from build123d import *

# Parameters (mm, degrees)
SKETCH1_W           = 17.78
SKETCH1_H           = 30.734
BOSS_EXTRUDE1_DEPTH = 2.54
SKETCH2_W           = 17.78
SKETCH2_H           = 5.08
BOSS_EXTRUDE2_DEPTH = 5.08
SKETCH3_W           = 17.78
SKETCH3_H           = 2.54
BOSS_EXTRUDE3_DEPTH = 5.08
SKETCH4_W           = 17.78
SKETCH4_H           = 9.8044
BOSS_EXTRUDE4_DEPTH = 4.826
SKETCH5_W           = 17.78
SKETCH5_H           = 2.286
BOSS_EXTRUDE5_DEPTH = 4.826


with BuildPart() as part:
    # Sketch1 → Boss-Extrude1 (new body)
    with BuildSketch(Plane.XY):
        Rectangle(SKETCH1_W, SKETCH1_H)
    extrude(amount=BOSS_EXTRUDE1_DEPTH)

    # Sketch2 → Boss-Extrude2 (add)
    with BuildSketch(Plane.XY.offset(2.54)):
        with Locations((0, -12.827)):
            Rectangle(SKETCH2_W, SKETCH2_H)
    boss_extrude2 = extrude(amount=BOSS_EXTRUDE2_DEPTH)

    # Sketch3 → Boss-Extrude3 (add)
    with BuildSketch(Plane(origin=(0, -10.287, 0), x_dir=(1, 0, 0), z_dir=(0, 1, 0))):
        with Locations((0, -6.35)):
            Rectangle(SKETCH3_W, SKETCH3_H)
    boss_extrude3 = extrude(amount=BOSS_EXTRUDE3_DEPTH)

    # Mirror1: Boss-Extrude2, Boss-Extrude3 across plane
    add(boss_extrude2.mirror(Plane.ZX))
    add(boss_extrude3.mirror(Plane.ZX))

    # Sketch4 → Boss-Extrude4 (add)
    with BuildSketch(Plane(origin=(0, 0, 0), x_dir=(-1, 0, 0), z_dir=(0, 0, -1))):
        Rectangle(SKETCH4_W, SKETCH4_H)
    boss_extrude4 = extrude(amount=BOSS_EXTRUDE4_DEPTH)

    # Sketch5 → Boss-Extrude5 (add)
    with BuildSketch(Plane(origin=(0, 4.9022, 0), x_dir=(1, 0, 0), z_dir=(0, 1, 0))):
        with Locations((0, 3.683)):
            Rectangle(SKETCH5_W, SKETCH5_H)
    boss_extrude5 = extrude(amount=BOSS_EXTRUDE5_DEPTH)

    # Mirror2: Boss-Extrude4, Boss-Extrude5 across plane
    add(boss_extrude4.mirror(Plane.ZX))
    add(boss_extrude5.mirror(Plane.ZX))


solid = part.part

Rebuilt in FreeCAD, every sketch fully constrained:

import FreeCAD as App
import Part
import Sketcher

V = App.Vector
Q = App.Units.Quantity


def add_polygon(sketch, points):
    """Adds a closed chain of lines whose ends are joined by coincident constraints."""
    first, n = sketch.GeometryCount, len(points)
    for a, b in zip(points, points[1:] + points[:1]):
        sketch.addGeometry(Part.LineSegment(App.Vector(*a, 0), App.Vector(*b, 0)), False)
    for i in range(n):
        sketch.addConstraint(Sketcher.Constraint("Coincident", first + i, 2, first + (i + 1) % n, 1))

doc = App.newDocument("Part")
body = doc.addObject("PartDesign::Body", "Body")

sketch1 = doc.addObject("Sketcher::SketchObject", "Sketch")
body.addObject(sketch1)
sketch1.AttachmentSupport = (doc.XY_Plane, [""])
sketch1.MapMode = "FlatFace"
add_polygon(sketch1, [(-9, 15), (-9, -15), (9, -15), (9, 15)])
sketch1.addConstraint([
    Sketcher.Constraint("Vertical", 0),
    Sketcher.Constraint("Horizontal", 1),
    Sketcher.Constraint("Vertical", 2),
    Sketcher.Constraint("Horizontal", 3),
    Sketcher.Constraint("Symmetric", 0, 2, 2, 2, -1, 1),
    Sketcher.Constraint("DistanceX", 1, 1, 1, 2, Q("0.7 in")),
    Sketcher.Constraint("DistanceY", 0, 2, 0, 1, Q("1.21 in")),
])
pad1 = doc.addObject("PartDesign::Pad", "Pad")
body.addObject(pad1)
pad1.Profile = sketch1
pad1.Length = Q("0.1 in")

sketch2 = doc.addObject("Sketcher::SketchObject", "Sketch001")
body.addObject(sketch2)
sketch2.AttachmentSupport = (doc.XY_Plane, [""])
sketch2.MapMode = "FlatFace"
sketch2.AttachmentOffset = App.Placement(V(0, 0, 0.1 * 25.4), App.Rotation())
add_polygon(sketch2, [(-9, -10), (-9, -15), (9, -15), (9, -10)])
sketch2.addConstraint([
    Sketcher.Constraint("Vertical", 0),
    Sketcher.Constraint("Horizontal", 1),
    Sketcher.Constraint("Vertical", 2),
    Sketcher.Constraint("Horizontal", 3),
    Sketcher.Constraint("DistanceX", 1, 1, 1, 2, Q("0.7 in")),
    Sketcher.Constraint("DistanceY", 0, 2, 0, 1, Q("0.2 in")),
    Sketcher.Constraint("DistanceX", 0, 2, -1, 1, Q("0.35 in")),
    Sketcher.Constraint("DistanceY", 0, 2, -1, 1, Q("0.605 in")),
])
pad2 = doc.addObject("PartDesign::Pad", "Pad001")
body.addObject(pad2)
pad2.Profile = sketch2
pad2.Length = Q("0.2 in")

sketch3 = doc.addObject("Sketcher::SketchObject", "Sketch002")
body.addObject(sketch3)
sketch3.AttachmentSupport = (doc.XZ_Plane, [""])
sketch3.MapMode = "FlatFace"
sketch3.AttachmentOffset = App.Placement(V(0, 0, 0.405 * 25.4), App.Rotation())
add_polygon(sketch3, [(-8.9, 5.1), (-8.9, 7.6), (8.9, 7.6), (8.9, 5.1)])
sketch3.addConstraint([
    Sketcher.Constraint("Vertical", 0),
    Sketcher.Constraint("Horizontal", 1),
    Sketcher.Constraint("Vertical", 2),
    Sketcher.Constraint("Horizontal", 3),
    Sketcher.Constraint("DistanceX", 1, 1, 1, 2, Q("0.7 in")),
    Sketcher.Constraint("DistanceY", 0, 1, 0, 2, Q("0.1 in")),
    Sketcher.Constraint("DistanceY", -1, 1, 0, 2, Q("0.3 in")),
    Sketcher.Constraint("DistanceX", 0, 2, -1, 1, Q("0.35 in")),
])
pad3 = doc.addObject("PartDesign::Pad", "Pad002")
body.addObject(pad3)
pad3.Profile = sketch3
pad3.Length = Q("0.2 in")
pad3.Reversed = True
doc.recompute()

mirrored = doc.addObject("PartDesign::Mirrored", "Mirrored")
body.addObject(mirrored)
mirrored.Originals = [pad2, pad3]
mirrored.MirrorPlane = (doc.XZ_Plane, [""])
body.Tip = mirrored

sketch4 = doc.addObject("Sketcher::SketchObject", "Sketch003")
body.addObject(sketch4)
sketch4.AttachmentSupport = (doc.XY_Plane, [""])
sketch4.MapMode = "FlatFace"
add_polygon(sketch4, [(9, 5), (9, -5), (-9, -5), (-9, 5)])
sketch4.addConstraint([
    Sketcher.Constraint("Vertical", 0),
    Sketcher.Constraint("Horizontal", 1),
    Sketcher.Constraint("Vertical", 2),
    Sketcher.Constraint("Horizontal", 3),
    Sketcher.Constraint("Symmetric", 0, 2, 2, 2, -1, 1),
    Sketcher.Constraint("DistanceX", 1, 2, 1, 1, Q("0.7 in")),
    Sketcher.Constraint("DistanceY", 0, 2, 0, 1, Q("0.386 in")),
])
pad4 = doc.addObject("PartDesign::Pad", "Pad003")
body.addObject(pad4)
pad4.Profile = sketch4
pad4.Length = Q("0.19 in")
pad4.Reversed = True

sketch5 = doc.addObject("Sketcher::SketchObject", "Sketch004")
body.addObject(sketch5)
sketch5.AttachmentSupport = (doc.XZ_Plane, [""])
sketch5.MapMode = "FlatFace"
sketch5.AttachmentOffset = App.Placement(V(0, 0, -0.193 * 25.4), App.Rotation())
add_polygon(sketch5, [(-8.9, -4.8), (-8.9, -2.5), (8.9, -2.5), (8.9, -4.8)])
sketch5.addConstraint([
    Sketcher.Constraint("Vertical", 0),
    Sketcher.Constraint("Horizontal", 1),
    Sketcher.Constraint("Vertical", 2),
    Sketcher.Constraint("Horizontal", 3),
    Sketcher.Constraint("DistanceX", 1, 1, 1, 2, Q("0.7 in")),
    Sketcher.Constraint("DistanceY", 0, 1, 0, 2, Q("0.09 in")),
    Sketcher.Constraint("DistanceY", 0, 2, -1, 1, Q("0.1 in")),
    Sketcher.Constraint("DistanceX", 0, 2, -1, 1, Q("0.35 in")),
])
pad5 = doc.addObject("PartDesign::Pad", "Pad004")
body.addObject(pad5)
pad5.Profile = sketch5
pad5.Length = Q("0.19 in")
pad5.Reversed = True
doc.recompute()

mirrored2 = doc.addObject("PartDesign::Mirrored", "Mirrored001")
body.addObject(mirrored2)
mirrored2.Originals = [pad4, pad5]
mirrored2.MirrorPlane = (doc.XZ_Plane, [""])
body.Tip = mirrored2

doc.recompute()
